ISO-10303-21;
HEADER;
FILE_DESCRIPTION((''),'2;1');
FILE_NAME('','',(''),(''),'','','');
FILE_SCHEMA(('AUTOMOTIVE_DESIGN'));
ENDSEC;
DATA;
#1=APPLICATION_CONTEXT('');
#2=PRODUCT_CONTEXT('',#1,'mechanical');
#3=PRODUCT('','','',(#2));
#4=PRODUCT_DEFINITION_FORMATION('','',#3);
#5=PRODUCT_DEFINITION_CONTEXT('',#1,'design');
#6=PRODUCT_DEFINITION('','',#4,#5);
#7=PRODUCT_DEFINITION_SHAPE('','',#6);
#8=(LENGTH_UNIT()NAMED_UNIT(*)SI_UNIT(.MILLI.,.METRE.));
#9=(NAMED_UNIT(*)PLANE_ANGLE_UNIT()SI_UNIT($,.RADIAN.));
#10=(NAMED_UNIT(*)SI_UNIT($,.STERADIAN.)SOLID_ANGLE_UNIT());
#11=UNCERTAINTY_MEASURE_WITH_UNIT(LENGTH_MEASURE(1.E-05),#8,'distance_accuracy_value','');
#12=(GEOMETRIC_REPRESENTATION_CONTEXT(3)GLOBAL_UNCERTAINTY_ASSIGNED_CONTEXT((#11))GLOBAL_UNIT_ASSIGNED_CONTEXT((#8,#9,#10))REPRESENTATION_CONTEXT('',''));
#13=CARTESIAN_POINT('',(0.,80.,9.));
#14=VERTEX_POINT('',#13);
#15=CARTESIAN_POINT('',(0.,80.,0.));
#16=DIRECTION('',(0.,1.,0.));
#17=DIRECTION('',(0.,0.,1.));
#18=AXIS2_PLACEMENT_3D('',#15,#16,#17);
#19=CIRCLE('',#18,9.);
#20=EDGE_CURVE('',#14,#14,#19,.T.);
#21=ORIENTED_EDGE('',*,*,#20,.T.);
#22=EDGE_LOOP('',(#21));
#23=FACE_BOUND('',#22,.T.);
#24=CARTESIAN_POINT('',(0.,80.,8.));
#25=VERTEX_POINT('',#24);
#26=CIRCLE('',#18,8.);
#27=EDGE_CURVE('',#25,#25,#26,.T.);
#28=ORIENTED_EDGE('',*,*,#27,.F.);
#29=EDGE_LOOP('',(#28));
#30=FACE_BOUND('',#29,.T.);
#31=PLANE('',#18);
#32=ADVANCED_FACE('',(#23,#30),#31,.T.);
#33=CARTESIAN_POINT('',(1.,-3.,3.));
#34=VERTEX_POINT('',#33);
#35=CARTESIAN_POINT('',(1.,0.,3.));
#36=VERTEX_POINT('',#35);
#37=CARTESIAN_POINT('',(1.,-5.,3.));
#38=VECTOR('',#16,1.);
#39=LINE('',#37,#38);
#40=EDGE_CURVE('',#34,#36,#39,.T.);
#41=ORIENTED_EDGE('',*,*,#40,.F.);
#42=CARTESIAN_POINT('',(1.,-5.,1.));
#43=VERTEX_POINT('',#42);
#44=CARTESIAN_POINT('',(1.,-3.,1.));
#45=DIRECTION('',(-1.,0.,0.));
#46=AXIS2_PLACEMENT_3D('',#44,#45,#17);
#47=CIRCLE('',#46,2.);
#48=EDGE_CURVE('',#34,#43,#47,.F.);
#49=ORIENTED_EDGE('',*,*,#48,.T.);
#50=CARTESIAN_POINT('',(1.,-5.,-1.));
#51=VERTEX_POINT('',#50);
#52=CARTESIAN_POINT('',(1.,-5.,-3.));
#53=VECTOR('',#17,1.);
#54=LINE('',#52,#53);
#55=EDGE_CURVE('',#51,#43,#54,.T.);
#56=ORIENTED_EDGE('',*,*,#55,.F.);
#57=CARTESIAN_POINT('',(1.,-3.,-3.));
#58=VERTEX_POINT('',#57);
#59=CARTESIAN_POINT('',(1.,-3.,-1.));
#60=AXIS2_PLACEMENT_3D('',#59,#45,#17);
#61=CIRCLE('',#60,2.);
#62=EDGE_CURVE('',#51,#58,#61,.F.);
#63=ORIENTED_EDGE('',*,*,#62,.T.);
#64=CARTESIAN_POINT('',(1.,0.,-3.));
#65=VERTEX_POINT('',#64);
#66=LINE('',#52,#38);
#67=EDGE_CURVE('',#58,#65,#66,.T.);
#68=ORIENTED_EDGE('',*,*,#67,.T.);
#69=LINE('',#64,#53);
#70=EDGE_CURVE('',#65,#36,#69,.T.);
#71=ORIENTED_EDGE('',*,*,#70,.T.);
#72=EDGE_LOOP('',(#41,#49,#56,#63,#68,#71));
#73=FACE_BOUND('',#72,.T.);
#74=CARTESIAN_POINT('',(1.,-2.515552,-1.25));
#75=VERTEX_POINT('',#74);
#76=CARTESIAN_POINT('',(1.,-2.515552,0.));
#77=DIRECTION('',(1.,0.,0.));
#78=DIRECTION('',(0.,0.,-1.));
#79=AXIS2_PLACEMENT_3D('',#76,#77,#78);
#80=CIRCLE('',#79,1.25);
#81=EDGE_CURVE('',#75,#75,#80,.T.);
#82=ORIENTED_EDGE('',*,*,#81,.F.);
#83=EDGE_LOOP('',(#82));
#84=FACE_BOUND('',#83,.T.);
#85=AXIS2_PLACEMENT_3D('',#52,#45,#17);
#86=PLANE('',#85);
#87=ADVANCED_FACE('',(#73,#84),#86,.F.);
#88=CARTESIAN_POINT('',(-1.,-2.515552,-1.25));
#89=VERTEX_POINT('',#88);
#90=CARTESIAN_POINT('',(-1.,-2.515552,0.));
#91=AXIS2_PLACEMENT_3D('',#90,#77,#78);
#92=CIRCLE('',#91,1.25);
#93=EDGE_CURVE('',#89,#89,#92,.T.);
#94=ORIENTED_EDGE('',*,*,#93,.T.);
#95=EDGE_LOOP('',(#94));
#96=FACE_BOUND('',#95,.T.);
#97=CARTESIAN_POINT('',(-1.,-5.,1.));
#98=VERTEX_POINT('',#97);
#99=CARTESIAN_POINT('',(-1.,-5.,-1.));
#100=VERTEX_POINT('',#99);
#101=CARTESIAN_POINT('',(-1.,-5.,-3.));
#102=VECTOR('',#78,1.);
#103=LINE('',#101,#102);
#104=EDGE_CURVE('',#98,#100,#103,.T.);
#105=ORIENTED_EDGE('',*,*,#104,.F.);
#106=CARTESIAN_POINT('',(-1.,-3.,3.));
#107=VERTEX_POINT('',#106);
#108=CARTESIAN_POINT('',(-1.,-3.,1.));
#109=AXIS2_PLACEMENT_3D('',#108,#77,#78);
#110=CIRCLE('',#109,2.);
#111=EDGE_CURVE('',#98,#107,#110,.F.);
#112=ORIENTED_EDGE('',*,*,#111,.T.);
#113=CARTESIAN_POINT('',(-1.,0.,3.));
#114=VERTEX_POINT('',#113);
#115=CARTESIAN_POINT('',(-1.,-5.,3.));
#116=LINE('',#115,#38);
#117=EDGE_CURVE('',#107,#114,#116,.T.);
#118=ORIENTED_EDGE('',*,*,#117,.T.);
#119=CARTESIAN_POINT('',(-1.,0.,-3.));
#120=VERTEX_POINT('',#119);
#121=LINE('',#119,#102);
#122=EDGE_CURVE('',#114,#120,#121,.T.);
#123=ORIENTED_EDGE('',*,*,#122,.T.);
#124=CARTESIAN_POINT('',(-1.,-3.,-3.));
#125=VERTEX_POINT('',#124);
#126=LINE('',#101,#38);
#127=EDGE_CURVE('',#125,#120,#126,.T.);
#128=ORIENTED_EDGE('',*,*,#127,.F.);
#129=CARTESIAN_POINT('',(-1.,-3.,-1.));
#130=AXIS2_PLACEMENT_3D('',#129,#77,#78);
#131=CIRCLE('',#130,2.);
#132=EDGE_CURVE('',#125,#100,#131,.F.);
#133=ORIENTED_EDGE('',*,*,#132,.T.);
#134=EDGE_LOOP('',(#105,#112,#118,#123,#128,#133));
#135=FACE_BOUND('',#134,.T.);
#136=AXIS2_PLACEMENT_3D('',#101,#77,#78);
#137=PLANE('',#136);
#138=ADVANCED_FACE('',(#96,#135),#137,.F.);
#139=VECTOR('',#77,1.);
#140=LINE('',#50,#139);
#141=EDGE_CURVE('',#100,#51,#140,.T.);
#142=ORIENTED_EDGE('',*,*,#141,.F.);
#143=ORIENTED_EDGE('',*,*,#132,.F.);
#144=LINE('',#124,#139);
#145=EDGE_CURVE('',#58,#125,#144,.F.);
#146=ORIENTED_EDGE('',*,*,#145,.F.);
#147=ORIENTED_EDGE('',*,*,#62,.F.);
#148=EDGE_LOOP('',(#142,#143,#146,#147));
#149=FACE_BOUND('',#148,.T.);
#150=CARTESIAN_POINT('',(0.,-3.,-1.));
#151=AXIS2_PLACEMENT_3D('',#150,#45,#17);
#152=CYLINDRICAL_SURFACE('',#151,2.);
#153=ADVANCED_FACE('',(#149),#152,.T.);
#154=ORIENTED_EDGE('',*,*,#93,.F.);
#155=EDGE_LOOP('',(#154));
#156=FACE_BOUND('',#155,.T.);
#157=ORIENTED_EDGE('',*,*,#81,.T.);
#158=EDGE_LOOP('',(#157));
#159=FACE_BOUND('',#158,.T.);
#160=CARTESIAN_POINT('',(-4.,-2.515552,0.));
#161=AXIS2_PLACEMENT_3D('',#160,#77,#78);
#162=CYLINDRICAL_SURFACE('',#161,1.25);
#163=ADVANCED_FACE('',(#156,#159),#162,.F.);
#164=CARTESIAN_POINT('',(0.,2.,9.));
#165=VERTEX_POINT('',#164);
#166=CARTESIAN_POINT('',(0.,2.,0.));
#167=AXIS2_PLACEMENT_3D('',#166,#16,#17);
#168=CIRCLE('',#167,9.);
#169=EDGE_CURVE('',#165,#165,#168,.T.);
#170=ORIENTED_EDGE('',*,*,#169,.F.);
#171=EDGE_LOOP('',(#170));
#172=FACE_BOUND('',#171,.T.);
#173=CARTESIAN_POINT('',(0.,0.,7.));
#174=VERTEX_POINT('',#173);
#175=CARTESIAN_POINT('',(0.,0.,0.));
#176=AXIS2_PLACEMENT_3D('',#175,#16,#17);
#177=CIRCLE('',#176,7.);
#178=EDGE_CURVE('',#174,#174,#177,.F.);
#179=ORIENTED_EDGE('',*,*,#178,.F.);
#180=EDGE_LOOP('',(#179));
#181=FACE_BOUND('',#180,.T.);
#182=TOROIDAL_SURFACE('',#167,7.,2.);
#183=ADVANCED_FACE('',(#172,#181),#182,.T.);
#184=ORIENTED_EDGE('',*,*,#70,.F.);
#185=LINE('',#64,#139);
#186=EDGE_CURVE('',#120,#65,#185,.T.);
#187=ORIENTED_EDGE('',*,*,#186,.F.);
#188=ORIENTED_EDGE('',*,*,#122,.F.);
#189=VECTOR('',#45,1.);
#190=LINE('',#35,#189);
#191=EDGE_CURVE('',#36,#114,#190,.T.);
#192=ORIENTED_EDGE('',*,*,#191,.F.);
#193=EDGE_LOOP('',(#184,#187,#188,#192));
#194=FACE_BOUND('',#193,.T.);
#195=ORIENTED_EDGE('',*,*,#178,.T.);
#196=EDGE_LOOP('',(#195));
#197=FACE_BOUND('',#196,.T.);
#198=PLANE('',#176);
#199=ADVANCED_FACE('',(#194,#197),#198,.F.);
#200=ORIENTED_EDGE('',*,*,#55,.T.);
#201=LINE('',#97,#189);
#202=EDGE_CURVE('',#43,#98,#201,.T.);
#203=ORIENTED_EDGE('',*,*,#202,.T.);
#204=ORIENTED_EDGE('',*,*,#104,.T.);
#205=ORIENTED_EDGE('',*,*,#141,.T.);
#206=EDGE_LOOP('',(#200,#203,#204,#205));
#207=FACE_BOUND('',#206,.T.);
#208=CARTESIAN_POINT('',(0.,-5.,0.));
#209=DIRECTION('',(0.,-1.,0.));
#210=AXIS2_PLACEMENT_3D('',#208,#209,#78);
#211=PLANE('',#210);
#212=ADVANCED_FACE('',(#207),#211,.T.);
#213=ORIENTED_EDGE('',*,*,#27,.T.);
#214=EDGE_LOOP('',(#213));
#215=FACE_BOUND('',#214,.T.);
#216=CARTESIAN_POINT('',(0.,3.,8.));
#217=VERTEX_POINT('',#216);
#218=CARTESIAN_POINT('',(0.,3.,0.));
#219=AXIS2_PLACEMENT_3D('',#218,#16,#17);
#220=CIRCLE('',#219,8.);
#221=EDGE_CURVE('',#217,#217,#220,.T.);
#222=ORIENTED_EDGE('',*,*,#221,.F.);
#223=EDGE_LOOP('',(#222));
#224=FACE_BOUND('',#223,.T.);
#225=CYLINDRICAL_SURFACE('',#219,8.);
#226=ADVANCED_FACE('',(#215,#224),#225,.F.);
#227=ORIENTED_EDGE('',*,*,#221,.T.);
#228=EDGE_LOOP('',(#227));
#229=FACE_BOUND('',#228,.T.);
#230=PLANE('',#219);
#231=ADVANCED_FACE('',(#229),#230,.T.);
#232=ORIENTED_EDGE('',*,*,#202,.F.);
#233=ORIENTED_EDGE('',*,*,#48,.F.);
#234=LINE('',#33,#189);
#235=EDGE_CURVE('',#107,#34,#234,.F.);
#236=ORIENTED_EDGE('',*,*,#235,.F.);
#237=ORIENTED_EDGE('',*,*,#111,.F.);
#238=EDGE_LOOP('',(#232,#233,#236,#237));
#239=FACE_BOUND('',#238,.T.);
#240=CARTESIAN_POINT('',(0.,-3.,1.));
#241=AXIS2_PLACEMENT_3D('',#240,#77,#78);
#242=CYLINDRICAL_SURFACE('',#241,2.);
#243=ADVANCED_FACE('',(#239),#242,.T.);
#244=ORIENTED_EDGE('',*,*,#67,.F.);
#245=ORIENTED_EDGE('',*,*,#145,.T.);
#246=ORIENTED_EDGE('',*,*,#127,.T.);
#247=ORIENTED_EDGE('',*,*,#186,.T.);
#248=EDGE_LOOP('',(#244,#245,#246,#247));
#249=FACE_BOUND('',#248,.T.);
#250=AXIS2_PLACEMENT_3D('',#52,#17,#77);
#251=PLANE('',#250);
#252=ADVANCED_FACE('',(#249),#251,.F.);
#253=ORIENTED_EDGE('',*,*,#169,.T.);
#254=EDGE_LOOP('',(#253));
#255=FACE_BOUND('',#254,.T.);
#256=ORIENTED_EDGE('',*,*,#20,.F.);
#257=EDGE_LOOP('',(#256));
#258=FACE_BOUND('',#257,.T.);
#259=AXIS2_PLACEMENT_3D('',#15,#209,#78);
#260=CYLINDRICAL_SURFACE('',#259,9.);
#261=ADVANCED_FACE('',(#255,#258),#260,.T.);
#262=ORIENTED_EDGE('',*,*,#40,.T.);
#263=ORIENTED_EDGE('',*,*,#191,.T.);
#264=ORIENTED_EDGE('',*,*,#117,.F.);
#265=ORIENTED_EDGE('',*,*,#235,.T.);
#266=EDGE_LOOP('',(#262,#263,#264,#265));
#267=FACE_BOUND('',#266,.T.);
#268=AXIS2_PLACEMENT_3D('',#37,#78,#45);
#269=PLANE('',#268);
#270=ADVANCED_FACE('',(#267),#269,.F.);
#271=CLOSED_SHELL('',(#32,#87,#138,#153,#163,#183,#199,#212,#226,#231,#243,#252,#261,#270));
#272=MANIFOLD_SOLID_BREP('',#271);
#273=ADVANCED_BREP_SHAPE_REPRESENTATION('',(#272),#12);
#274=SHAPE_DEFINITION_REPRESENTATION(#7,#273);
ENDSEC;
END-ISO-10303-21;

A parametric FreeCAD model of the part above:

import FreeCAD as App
import Part
import Sketcher
Q = App.Units.Quantity


def edges_at(feature, points):
    """Names of the edges that pass closest to the given points."""
    edges = feature.Shape.Edges
    near = lambda p: min(range(len(edges)), key=lambda i: edges[i].distToShape(Part.Vertex(*p))[0])
    return sorted({f"Edge{near(p) + 1}" for p in points})

doc = App.newDocument("Part")
body = doc.addObject("PartDesign::Body", "Body")

# Sketch on XZ plane
sketch1 = body.newObject("Sketcher::SketchObject", "Sketch")
sketch1.AttachmentSupport = (doc.getObject("XZ_Plane"), [""])
sketch1.MapMode = "FlatFace"
sketch1.addGeometry(Part.Circle(App.Vector(0, 0, 0), App.Vector(0, 0, 1), 9), False)
sketch1.addConstraint(Sketcher.Constraint("Coincident", 0, 3, -1, 1))
sketch1.addConstraint(Sketcher.Constraint("Diameter", 0, Q("18 mm")))
pad1 = body.newObject("PartDesign::Pad", "Pad")
pad1.Profile = sketch1
pad1.Length = 80
pad1.Reversed = True

# Sketch on XZ plane
sketch2 = body.newObject("Sketcher::SketchObject", "Sketch001")
sketch2.AttachmentSupport = (doc.getObject("XZ_Plane"), [""])
sketch2.MapMode = "FlatFace"
sketch2.AttachmentOffset = App.Placement(App.Vector(0, 0, -80), App.Rotation())
sketch2.addGeometry(Part.Circle(App.Vector(0, 0, 0), App.Vector(0, 0, 1), 8), False)
sketch2.addConstraint(Sketcher.Constraint("Coincident", 0, 3, -1, 1))
sketch2.addConstraint(Sketcher.Constraint("Diameter", 0, Q("16 mm")))
pocket1 = body.newObject("PartDesign::Pocket", "Pocket")
pocket1.Profile = sketch2
pocket1.Length = 77
pocket1.Reversed = True

# Sketch on XZ plane
sketch3 = body.newObject("Sketcher::SketchObject", "Sketch002")
sketch3.AttachmentSupport = (doc.getObject("XZ_Plane"), [""])
sketch3.MapMode = "FlatFace"
sketch3.addGeometry(Part.LineSegment(App.Vector(1, -3, 0), App.Vector(1, 3, 0)), False)
sketch3.addGeometry(Part.LineSegment(App.Vector(1, 3, 0), App.Vector(-1, 3, 0)), False)
sketch3.addGeometry(Part.LineSegment(App.Vector(-1, 3, 0), App.Vector(-1, -3, 0)), False)
sketch3.addGeometry(Part.LineSegment(App.Vector(-1, -3, 0), App.Vector(1, -3, 0)), False)
sketch3.addConstraint(Sketcher.Constraint("Coincident", 0, 2, 1, 1))
sketch3.addConstraint(Sketcher.Constraint("Coincident", 1, 2, 2, 1))
sketch3.addConstraint(Sketcher.Constraint("Coincident", 2, 2, 3, 1))
sketch3.addConstraint(Sketcher.Constraint("Coincident", 3, 2, 0, 1))
sketch3.addConstraint(Sketcher.Constraint("Vertical", 0))
sketch3.addConstraint(Sketcher.Constraint("Horizontal", 1))
sketch3.addConstraint(Sketcher.Constraint("Vertical", 2))
sketch3.addConstraint(Sketcher.Constraint("Horizontal", 3))
sketch3.addConstraint(Sketcher.Constraint("Symmetric", 0, 2, 2, 2, -1, 1))
sketch3.addConstraint(Sketcher.Constraint("DistanceX", 1, 2, 1, 1, Q("2 mm")))
sketch3.addConstraint(Sketcher.Constraint("DistanceY", 0, 1, 0, 2, Q("6 mm")))
pad2 = body.newObject("PartDesign::Pad", "Pad001")
pad2.Profile = sketch3
pad2.Length = 5

# Sketch on YZ plane
sketch4 = body.newObject("Sketcher::SketchObject", "Sketch003")
sketch4.AttachmentSupport = (doc.getObject("YZ_Plane"), [""])
sketch4.MapMode = "FlatFace"
sketch4.AttachmentOffset = App.Placement(App.Vector(0, 0, 1), App.Rotation())
sketch4.addGeometry(Part.Circle(App.Vector(-2.515552, 0, 0), App.Vector(0, 0, 1), 1.25), False)
sketch4.addConstraint(Sketcher.Constraint("PointOnObject", 0, 3, -1))
sketch4.addConstraint(Sketcher.Constraint("Diameter", 0, Q("2.5 mm")))
sketch4.addConstraint(Sketcher.Constraint("DistanceX", 0, 3, -1, 1, Q("2.515552 mm")))
pocket2 = body.newObject("PartDesign::Pocket", "Pocket001")
pocket2.Profile = sketch4
pocket2.Length = 5
doc.recompute()

fillet = body.newObject("PartDesign::Fillet", "Fillet")
fillet.Base = (pocket2, edges_at(pocket2, [(0, -5, -3)]))
fillet.Radius = 2
doc.recompute()

fillet2 = body.newObject("PartDesign::Fillet", "Fillet001")
fillet2.Base = (fillet, edges_at(fillet, [(0, -5, 3)]))
fillet2.Radius = 2
doc.recompute()

fillet3 = body.newObject("PartDesign::Fillet", "Fillet002")
fillet3.Base = (fillet2, edges_at(fillet2, [(0, 0, -9)]))
fillet3.Radius = 2

doc.recompute()
